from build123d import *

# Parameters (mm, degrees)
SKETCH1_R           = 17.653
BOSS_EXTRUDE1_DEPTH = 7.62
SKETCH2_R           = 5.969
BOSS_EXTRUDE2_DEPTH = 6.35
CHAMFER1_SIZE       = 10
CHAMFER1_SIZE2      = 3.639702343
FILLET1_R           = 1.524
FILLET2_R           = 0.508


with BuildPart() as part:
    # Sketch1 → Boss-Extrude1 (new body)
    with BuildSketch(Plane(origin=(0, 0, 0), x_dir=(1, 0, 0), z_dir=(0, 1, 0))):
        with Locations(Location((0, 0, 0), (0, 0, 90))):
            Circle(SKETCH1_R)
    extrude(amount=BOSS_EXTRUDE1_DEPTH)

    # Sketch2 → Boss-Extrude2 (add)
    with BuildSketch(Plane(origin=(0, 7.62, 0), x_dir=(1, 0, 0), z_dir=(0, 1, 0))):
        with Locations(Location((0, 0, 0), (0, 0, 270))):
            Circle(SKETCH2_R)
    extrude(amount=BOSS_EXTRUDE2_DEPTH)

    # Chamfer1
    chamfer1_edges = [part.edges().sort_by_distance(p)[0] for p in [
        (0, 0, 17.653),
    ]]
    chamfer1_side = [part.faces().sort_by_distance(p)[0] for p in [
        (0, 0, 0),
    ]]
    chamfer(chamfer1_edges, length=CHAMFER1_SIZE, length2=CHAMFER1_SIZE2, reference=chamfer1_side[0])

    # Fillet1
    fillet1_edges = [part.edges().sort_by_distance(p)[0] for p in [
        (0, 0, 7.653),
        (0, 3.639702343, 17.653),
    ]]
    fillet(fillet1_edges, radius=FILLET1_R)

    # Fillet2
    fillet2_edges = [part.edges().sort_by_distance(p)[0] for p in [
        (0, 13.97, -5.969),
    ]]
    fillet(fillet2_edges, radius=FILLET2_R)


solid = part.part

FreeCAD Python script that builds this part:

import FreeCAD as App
import Part
import Sketcher
Q = App.Units.Quantity


def edges_at(feature, points):
    """Names of the edges that pass closest to the given points."""
    edges = feature.Shape.Edges
    near = lambda p: min(range(len(edges)), key=lambda i: edges[i].distToShape(Part.Vertex(*p))[0])
    return sorted({f"Edge{near(p) + 1}" for p in points})

doc = App.newDocument("Part")
params = doc.addObject("Spreadsheet::Sheet", "Params")
for row, (alias, value) in enumerate([
    ("sketch1_diameter", "1.39 in"),
    ("pad1_length", "0.3 in"),
    ("sketch2_diameter", "0.47 in"),
    ("pad2_length", "0.25 in"),
    ("chamfer_size", "10 mm"),
    ("chamfer_size2", "3.639702 mm"),
    ("fillet_radius", "0.06 in"),
    ("fillet2_radius", "0.02 in"),
], start=1):
    params.set(f"A{row}", alias)
    params.set(f"B{row}", "=" + value)
    params.setAlias(f"B{row}", alias)

body = doc.addObject("PartDesign::Body", "Body")

# Sketch on XZ plane
sketch1 = body.newObject("Sketcher::SketchObject", "Sketch")
sketch1.AttachmentSupport = (doc.getObject("XZ_Plane"), [""])
sketch1.MapMode = "FlatFace"
sketch1.addGeometry(Part.Circle(App.Vector(0, 0, 0), App.Vector(0, 0, 1), 17.653), False)
sketch1.addConstraint([
    Sketcher.Constraint("Coincident", 0, 3, -1, 1),
    Sketcher.Constraint("Diameter", 0, Q("1.39 in")),
])
sketch1.setExpression("Constraints[1]", "Params.sketch1_diameter")
pad1 = body.newObject("PartDesign::Pad", "Pad")
pad1.Profile = sketch1
pad1.setExpression("Length", "Params.pad1_length")
pad1.Reversed = True

# Sketch on XZ plane
sketch2 = body.newObject("Sketcher::SketchObject", "Sketch001")
sketch2.AttachmentSupport = (doc.getObject("XZ_Plane"), [""])
sketch2.MapMode = "FlatFace"
sketch2.AttachmentOffset = App.Placement(App.Vector(0, 0, -0.3 * 25.4), App.Rotation())
sketch2.addGeometry(Part.Circle(App.Vector(0, 0, 0), App.Vector(0, 0, 1), 5.969), False)
sketch2.addConstraint([
    Sketcher.Constraint("Coincident", 0, 3, -1, 1),
    Sketcher.Constraint("Diameter", 0, Q("0.47 in")),
])
sketch2.setExpression("Constraints[1]", "Params.sketch2_diameter")
pad2 = body.newObject("PartDesign::Pad", "Pad001")
pad2.Profile = sketch2
pad2.setExpression("Length", "Params.pad2_length")
pad2.Reversed = True
doc.recompute()

chamfer = body.newObject("PartDesign::Chamfer", "Chamfer")
chamfer.Base = (pad2, edges_at(pad2, [(0, 0, 17.653)]))
chamfer.ChamferType = "Two distances"
chamfer.setExpression("Size", "Params.chamfer_size")
chamfer.setExpression("Size2", "Params.chamfer_size2")
chamfer.FlipDirection = True
doc.recompute()

fillet = body.newObject("PartDesign::Fillet", "Fillet")
fillet.Base = (chamfer, edges_at(chamfer, [(0, 0, 7.653), (0, 3.64, 17.653)]))
fillet.setExpression("Radius", "Params.fillet_radius")
doc.recompute()

fillet2 = body.newObject("PartDesign::Fillet", "Fillet001")
fillet2.Base = (fillet, edges_at(fillet, [(0, 13.97, -5.969)]))
fillet2.setExpression("Radius", "Params.fillet2_radius")

doc.recompute()
